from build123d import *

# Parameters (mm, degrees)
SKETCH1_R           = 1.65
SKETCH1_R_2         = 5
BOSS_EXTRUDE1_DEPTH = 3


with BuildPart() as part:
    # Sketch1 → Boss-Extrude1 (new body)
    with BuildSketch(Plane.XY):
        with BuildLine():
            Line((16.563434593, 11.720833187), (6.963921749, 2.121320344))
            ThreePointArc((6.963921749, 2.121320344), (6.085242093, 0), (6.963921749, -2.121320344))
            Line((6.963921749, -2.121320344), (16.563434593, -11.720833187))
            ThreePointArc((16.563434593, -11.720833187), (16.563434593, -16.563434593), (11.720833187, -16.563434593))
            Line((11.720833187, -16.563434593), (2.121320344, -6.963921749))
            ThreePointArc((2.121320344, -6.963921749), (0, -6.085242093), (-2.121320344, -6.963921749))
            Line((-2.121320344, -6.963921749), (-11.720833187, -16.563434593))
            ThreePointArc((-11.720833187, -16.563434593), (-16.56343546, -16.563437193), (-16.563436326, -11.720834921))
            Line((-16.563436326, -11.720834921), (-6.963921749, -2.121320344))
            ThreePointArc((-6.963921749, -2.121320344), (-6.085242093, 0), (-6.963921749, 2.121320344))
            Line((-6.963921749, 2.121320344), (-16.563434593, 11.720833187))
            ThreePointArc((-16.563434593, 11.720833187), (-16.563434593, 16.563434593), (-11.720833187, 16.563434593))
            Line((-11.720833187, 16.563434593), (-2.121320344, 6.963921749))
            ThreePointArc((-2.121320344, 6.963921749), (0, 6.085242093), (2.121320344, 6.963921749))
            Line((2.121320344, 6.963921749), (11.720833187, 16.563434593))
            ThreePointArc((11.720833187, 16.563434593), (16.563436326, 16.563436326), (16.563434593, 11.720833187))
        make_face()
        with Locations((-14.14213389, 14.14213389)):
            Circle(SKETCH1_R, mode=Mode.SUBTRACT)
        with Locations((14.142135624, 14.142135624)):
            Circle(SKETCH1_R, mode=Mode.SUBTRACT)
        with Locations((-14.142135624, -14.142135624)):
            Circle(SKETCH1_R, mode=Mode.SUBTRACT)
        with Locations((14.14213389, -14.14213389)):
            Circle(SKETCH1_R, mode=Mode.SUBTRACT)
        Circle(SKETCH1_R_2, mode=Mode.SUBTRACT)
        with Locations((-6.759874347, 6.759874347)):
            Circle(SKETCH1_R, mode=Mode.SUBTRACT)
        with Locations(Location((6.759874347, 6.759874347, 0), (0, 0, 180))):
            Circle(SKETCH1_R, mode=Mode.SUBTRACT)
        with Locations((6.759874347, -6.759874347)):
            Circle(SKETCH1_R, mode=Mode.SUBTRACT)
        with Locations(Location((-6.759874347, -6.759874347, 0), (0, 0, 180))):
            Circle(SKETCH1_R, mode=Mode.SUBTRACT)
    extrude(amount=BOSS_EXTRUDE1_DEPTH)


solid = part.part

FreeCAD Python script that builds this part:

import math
import FreeCAD as App
import Part
import Sketcher

doc = App.newDocument("Part")
body = doc.addObject("PartDesign::Body", "Body")

sketch1 = doc.addObject("Sketcher::SketchObject", "Sketch")
body.addObject(sketch1)
sketch1.AttachmentSupport = (doc.XY_Plane, [""])
sketch1.MapMode = "FlatFace"
sketch1.addGeometry(Part.LineSegment(App.Vector(7, 2.1, 0), App.Vector(16.6, 11.7, 0)), False)
sketch1.addGeometry(Part.ArcOfCircle(Part.Circle(App.Vector(14.1, 14.1, 0), App.Vector(0, 0, 1), 3.4), math.radians(-45), math.radians(135)), False)
sketch1.addGeometry(Part.LineSegment(App.Vector(11.7, 16.6, 0), App.Vector(2.1, 7, 0)), False)
sketch1.addGeometry(Part.ArcOfCircle(Part.Circle(App.Vector(0, 9.1, 0), App.Vector(0, 0, 1), 3), math.radians(-135), math.radians(-45)), False)
sketch1.addGeometry(Part.LineSegment(App.Vector(-2.1, 7, 0), App.Vector(-11.7, 16.6, 0)), False)
sketch1.addGeometry(Part.ArcOfCircle(Part.Circle(App.Vector(-14.1, 14.1, 0), App.Vector(0, 0, 1), 3.4), math.radians(45), math.radians(225)), False)
sketch1.addGeometry(Part.LineSegment(App.Vector(-16.6, 11.7, 0), App.Vector(-7, 2.1, 0)), False)
sketch1.addGeometry(Part.ArcOfCircle(Part.Circle(App.Vector(-9.1, 0, 0), App.Vector(0, 0, 1), 3), math.radians(-45), math.radians(45)), False)
sketch1.addGeometry(Part.LineSegment(App.Vector(-7, -2.1, 0), App.Vector(-16.6, -11.7, 0)), False)
sketch1.addGeometry(Part.ArcOfCircle(Part.Circle(App.Vector(-14.1, -14.1, 0), App.Vector(0, 0, 1), 3.4), math.radians(135), math.radians(315)), False)
sketch1.addGeometry(Part.LineSegment(App.Vector(-11.7, -16.6, 0), App.Vector(-2.1, -7, 0)), False)
sketch1.addGeometry(Part.ArcOfCircle(Part.Circle(App.Vector(0, -9.1, 0), App.Vector(0, 0, 1), 3), math.radians(45), math.radians(135)), False)
sketch1.addGeometry(Part.LineSegment(App.Vector(2.1, -7, 0), App.Vector(11.7, -16.6, 0)), False)
sketch1.addGeometry(Part.ArcOfCircle(Part.Circle(App.Vector(14.1, -14.1, 0), App.Vector(0, 0, 1), 3.4), math.radians(-135), math.radians(45)), False)
sketch1.addGeometry(Part.LineSegment(App.Vector(16.6, -11.7, 0), App.Vector(7, -2.1, 0)), False)
sketch1.addGeometry(Part.ArcOfCircle(Part.Circle(App.Vector(9.1, 0, 0), App.Vector(0, 0, 1), 3), math.radians(135), math.radians(225)), False)
sketch1.addGeometry(Part.Circle(App.Vector(14.1, -14.1, 0), App.Vector(0, 0, 1), 1.6), False)
sketch1.addGeometry(Part.Circle(App.Vector(6.8, -6.8, 0), App.Vector(0, 0, 1), 1.6), False)
sketch1.addGeometry(Part.Circle(App.Vector(-14.1, -14.1, 0), App.Vector(0, 0, 1), 1.6), False)
sketch1.addGeometry(Part.Circle(App.Vector(-6.8, -6.8, 0), App.Vector(0, 0, 1), 1.6), False)
sketch1.addGeometry(Part.Circle(App.Vector(6.8, 6.8, 0), App.Vector(0, 0, 1), 1.6), False)
sketch1.addGeometry(Part.Circle(App.Vector(14.1, 14.1, 0), App.Vector(0, 0, 1), 1.6), False)
sketch1.addGeometry(Part.Circle(App.Vector(0, 0, 0), App.Vector(0, 0, 1), 5), False)
sketch1.addGeometry(Part.Circle(App.Vector(-6.8, 6.8, 0), App.Vector(0, 0, 1), 1.6), False)
sketch1.addGeometry(Part.Circle(App.Vector(-14.1, 14.1, 0), App.Vector(0, 0, 1), 1.6), False)
sketch1.addConstraint(Sketcher.Constraint("Tangent", 0, 2, 1, 1))
sketch1.addConstraint(Sketcher.Constraint("Tangent", 1, 2, 2, 1))
sketch1.addConstraint(Sketcher.Constraint("Tangent", 2, 2, 3, 2))
sketch1.addConstraint(Sketcher.Constraint("Tangent", 3, 1, 4, 1))
sketch1.addConstraint(Sketcher.Constraint("Tangent", 4, 2, 5, 1))
sketch1.addConstraint(Sketcher.Constraint("Tangent", 5, 2, 6, 1))
sketch1.addConstraint(Sketcher.Constraint("Tangent", 6, 2, 7, 2))
sketch1.addConstraint(Sketcher.Constraint("Tangent", 7, 1, 8, 1))
sketch1.addConstraint(Sketcher.Constraint("Tangent", 8, 2, 9, 1))
sketch1.addConstraint(Sketcher.Constraint("Tangent", 9, 2, 10, 1))
sketch1.addConstraint(Sketcher.Constraint("Tangent", 10, 2, 11, 2))
sketch1.addConstraint(Sketcher.Constraint("Tangent", 11, 1, 12, 1))
sketch1.addConstraint(Sketcher.Constraint("Tangent", 12, 2, 13, 1))
sketch1.addConstraint(Sketcher.Constraint("Tangent", 13, 2, 14, 1))
sketch1.addConstraint(Sketcher.Constraint("Tangent", 14, 2, 15, 2))
sketch1.addConstraint(Sketcher.Constraint("Tangent", 15, 1, 0, 1))
sketch1.addConstraint(Sketcher.Constraint("Coincident", 22, 3, -1, 1))
sketch1.addConstraint(Sketcher.Constraint("Coincident", 16, 3, 13, 3))
sketch1.addConstraint(Sketcher.Constraint("Coincident", 18, 3, 9, 3))
sketch1.addConstraint(Sketcher.Constraint("Coincident", 21, 3, 1, 3))
sketch1.addConstraint(Sketcher.Constraint("Coincident", 24, 3, 5, 3))
sketch1.addConstraint(Sketcher.Constraint("Equal", 1, 5))
sketch1.addConstraint(Sketcher.Constraint("Equal", 3, 7))
sketch1.addConstraint(Sketcher.Constraint("Equal", 5, 9))
sketch1.addConstraint(Sketcher.Constraint("Equal", 7, 11))
sketch1.addConstraint(Sketcher.Constraint("Equal", 9, 13))
sketch1.addConstraint(Sketcher.Constraint("Equal", 11, 15))
sketch1.addConstraint(Sketcher.Constraint("Equal", 16, 17))
sketch1.addConstraint(Sketcher.Constraint("Equal", 17, 18))
sketch1.addConstraint(Sketcher.Constraint("Equal", 18, 19))
sketch1.addConstraint(Sketcher.Constraint("Equal", 19, 20))
sketch1.addConstraint(Sketcher.Constraint("Equal", 20, 21))
sketch1.addConstraint(Sketcher.Constraint("Equal", 21, 23))
sketch1.addConstraint(Sketcher.Constraint("Equal", 23, 24))
sketch1.addConstraint(Sketcher.Constraint("Symmetric", 1, 3, 9, 3, -1, 1))
sketch1.addConstraint(Sketcher.Constraint("Symmetric", 3, 3, 11, 3, -1, 1))
sketch1.addConstraint(Sketcher.Constraint("Symmetric", 5, 3, 13, 3, -1, 1))
sketch1.addConstraint(Sketcher.Constraint("Symmetric", 7, 3, 15, 3, -1, 1))
sketch1.addConstraint(Sketcher.Constraint("Symmetric", 19, 3, 20, 3, -1, 1))
sketch1.addConstraint(Sketcher.Constraint("Symmetric", 17, 3, 23, 3, -1, 1))
sketch1.addConstraint(Sketcher.Constraint("Symmetric", 1, 3, 5, 3, -2))
sketch1.addConstraint(Sketcher.Constraint("Symmetric", 17, 3, 19, 3, -2))
sketch1.addConstraint(Sketcher.Constraint("PointOnObject", 3, 3, -2))
sketch1.addConstraint(Sketcher.Constraint("PointOnObject", 7, 3, -1))
sketch1.addConstraint(Sketcher.Constraint("Parallel", 0, 2))
sketch1.addConstraint(Sketcher.Constraint("Perpendicular", 2, 4))
sketch1.addConstraint(Sketcher.Constraint("Equal", 0, 2))
sketch1.addConstraint(Sketcher.Constraint("Diameter", 22, 10.0))
sketch1.addConstraint(Sketcher.Constraint("Radius", 3, 3.0))
sketch1.addConstraint(Sketcher.Constraint("Diameter", 16, 3.3))
sketch1.addConstraint(Sketcher.Constraint("Radius", 1, 3.424236))
sketch1.addConstraint(Sketcher.Constraint("Distance", 0, 13.575761))
sketch1.addConstraint(Sketcher.Constraint("DistanceX", 17, 3, 13, 3, 7.38226))
sketch1.addConstraint(Sketcher.Constraint("DistanceY", 13, 3, 17, 3, 7.38226))
pad1 = doc.addObject("PartDesign::Pad", "Pad")
body.addObject(pad1)
pad1.Profile = sketch1
pad1.Length = 3

doc.recompute()
